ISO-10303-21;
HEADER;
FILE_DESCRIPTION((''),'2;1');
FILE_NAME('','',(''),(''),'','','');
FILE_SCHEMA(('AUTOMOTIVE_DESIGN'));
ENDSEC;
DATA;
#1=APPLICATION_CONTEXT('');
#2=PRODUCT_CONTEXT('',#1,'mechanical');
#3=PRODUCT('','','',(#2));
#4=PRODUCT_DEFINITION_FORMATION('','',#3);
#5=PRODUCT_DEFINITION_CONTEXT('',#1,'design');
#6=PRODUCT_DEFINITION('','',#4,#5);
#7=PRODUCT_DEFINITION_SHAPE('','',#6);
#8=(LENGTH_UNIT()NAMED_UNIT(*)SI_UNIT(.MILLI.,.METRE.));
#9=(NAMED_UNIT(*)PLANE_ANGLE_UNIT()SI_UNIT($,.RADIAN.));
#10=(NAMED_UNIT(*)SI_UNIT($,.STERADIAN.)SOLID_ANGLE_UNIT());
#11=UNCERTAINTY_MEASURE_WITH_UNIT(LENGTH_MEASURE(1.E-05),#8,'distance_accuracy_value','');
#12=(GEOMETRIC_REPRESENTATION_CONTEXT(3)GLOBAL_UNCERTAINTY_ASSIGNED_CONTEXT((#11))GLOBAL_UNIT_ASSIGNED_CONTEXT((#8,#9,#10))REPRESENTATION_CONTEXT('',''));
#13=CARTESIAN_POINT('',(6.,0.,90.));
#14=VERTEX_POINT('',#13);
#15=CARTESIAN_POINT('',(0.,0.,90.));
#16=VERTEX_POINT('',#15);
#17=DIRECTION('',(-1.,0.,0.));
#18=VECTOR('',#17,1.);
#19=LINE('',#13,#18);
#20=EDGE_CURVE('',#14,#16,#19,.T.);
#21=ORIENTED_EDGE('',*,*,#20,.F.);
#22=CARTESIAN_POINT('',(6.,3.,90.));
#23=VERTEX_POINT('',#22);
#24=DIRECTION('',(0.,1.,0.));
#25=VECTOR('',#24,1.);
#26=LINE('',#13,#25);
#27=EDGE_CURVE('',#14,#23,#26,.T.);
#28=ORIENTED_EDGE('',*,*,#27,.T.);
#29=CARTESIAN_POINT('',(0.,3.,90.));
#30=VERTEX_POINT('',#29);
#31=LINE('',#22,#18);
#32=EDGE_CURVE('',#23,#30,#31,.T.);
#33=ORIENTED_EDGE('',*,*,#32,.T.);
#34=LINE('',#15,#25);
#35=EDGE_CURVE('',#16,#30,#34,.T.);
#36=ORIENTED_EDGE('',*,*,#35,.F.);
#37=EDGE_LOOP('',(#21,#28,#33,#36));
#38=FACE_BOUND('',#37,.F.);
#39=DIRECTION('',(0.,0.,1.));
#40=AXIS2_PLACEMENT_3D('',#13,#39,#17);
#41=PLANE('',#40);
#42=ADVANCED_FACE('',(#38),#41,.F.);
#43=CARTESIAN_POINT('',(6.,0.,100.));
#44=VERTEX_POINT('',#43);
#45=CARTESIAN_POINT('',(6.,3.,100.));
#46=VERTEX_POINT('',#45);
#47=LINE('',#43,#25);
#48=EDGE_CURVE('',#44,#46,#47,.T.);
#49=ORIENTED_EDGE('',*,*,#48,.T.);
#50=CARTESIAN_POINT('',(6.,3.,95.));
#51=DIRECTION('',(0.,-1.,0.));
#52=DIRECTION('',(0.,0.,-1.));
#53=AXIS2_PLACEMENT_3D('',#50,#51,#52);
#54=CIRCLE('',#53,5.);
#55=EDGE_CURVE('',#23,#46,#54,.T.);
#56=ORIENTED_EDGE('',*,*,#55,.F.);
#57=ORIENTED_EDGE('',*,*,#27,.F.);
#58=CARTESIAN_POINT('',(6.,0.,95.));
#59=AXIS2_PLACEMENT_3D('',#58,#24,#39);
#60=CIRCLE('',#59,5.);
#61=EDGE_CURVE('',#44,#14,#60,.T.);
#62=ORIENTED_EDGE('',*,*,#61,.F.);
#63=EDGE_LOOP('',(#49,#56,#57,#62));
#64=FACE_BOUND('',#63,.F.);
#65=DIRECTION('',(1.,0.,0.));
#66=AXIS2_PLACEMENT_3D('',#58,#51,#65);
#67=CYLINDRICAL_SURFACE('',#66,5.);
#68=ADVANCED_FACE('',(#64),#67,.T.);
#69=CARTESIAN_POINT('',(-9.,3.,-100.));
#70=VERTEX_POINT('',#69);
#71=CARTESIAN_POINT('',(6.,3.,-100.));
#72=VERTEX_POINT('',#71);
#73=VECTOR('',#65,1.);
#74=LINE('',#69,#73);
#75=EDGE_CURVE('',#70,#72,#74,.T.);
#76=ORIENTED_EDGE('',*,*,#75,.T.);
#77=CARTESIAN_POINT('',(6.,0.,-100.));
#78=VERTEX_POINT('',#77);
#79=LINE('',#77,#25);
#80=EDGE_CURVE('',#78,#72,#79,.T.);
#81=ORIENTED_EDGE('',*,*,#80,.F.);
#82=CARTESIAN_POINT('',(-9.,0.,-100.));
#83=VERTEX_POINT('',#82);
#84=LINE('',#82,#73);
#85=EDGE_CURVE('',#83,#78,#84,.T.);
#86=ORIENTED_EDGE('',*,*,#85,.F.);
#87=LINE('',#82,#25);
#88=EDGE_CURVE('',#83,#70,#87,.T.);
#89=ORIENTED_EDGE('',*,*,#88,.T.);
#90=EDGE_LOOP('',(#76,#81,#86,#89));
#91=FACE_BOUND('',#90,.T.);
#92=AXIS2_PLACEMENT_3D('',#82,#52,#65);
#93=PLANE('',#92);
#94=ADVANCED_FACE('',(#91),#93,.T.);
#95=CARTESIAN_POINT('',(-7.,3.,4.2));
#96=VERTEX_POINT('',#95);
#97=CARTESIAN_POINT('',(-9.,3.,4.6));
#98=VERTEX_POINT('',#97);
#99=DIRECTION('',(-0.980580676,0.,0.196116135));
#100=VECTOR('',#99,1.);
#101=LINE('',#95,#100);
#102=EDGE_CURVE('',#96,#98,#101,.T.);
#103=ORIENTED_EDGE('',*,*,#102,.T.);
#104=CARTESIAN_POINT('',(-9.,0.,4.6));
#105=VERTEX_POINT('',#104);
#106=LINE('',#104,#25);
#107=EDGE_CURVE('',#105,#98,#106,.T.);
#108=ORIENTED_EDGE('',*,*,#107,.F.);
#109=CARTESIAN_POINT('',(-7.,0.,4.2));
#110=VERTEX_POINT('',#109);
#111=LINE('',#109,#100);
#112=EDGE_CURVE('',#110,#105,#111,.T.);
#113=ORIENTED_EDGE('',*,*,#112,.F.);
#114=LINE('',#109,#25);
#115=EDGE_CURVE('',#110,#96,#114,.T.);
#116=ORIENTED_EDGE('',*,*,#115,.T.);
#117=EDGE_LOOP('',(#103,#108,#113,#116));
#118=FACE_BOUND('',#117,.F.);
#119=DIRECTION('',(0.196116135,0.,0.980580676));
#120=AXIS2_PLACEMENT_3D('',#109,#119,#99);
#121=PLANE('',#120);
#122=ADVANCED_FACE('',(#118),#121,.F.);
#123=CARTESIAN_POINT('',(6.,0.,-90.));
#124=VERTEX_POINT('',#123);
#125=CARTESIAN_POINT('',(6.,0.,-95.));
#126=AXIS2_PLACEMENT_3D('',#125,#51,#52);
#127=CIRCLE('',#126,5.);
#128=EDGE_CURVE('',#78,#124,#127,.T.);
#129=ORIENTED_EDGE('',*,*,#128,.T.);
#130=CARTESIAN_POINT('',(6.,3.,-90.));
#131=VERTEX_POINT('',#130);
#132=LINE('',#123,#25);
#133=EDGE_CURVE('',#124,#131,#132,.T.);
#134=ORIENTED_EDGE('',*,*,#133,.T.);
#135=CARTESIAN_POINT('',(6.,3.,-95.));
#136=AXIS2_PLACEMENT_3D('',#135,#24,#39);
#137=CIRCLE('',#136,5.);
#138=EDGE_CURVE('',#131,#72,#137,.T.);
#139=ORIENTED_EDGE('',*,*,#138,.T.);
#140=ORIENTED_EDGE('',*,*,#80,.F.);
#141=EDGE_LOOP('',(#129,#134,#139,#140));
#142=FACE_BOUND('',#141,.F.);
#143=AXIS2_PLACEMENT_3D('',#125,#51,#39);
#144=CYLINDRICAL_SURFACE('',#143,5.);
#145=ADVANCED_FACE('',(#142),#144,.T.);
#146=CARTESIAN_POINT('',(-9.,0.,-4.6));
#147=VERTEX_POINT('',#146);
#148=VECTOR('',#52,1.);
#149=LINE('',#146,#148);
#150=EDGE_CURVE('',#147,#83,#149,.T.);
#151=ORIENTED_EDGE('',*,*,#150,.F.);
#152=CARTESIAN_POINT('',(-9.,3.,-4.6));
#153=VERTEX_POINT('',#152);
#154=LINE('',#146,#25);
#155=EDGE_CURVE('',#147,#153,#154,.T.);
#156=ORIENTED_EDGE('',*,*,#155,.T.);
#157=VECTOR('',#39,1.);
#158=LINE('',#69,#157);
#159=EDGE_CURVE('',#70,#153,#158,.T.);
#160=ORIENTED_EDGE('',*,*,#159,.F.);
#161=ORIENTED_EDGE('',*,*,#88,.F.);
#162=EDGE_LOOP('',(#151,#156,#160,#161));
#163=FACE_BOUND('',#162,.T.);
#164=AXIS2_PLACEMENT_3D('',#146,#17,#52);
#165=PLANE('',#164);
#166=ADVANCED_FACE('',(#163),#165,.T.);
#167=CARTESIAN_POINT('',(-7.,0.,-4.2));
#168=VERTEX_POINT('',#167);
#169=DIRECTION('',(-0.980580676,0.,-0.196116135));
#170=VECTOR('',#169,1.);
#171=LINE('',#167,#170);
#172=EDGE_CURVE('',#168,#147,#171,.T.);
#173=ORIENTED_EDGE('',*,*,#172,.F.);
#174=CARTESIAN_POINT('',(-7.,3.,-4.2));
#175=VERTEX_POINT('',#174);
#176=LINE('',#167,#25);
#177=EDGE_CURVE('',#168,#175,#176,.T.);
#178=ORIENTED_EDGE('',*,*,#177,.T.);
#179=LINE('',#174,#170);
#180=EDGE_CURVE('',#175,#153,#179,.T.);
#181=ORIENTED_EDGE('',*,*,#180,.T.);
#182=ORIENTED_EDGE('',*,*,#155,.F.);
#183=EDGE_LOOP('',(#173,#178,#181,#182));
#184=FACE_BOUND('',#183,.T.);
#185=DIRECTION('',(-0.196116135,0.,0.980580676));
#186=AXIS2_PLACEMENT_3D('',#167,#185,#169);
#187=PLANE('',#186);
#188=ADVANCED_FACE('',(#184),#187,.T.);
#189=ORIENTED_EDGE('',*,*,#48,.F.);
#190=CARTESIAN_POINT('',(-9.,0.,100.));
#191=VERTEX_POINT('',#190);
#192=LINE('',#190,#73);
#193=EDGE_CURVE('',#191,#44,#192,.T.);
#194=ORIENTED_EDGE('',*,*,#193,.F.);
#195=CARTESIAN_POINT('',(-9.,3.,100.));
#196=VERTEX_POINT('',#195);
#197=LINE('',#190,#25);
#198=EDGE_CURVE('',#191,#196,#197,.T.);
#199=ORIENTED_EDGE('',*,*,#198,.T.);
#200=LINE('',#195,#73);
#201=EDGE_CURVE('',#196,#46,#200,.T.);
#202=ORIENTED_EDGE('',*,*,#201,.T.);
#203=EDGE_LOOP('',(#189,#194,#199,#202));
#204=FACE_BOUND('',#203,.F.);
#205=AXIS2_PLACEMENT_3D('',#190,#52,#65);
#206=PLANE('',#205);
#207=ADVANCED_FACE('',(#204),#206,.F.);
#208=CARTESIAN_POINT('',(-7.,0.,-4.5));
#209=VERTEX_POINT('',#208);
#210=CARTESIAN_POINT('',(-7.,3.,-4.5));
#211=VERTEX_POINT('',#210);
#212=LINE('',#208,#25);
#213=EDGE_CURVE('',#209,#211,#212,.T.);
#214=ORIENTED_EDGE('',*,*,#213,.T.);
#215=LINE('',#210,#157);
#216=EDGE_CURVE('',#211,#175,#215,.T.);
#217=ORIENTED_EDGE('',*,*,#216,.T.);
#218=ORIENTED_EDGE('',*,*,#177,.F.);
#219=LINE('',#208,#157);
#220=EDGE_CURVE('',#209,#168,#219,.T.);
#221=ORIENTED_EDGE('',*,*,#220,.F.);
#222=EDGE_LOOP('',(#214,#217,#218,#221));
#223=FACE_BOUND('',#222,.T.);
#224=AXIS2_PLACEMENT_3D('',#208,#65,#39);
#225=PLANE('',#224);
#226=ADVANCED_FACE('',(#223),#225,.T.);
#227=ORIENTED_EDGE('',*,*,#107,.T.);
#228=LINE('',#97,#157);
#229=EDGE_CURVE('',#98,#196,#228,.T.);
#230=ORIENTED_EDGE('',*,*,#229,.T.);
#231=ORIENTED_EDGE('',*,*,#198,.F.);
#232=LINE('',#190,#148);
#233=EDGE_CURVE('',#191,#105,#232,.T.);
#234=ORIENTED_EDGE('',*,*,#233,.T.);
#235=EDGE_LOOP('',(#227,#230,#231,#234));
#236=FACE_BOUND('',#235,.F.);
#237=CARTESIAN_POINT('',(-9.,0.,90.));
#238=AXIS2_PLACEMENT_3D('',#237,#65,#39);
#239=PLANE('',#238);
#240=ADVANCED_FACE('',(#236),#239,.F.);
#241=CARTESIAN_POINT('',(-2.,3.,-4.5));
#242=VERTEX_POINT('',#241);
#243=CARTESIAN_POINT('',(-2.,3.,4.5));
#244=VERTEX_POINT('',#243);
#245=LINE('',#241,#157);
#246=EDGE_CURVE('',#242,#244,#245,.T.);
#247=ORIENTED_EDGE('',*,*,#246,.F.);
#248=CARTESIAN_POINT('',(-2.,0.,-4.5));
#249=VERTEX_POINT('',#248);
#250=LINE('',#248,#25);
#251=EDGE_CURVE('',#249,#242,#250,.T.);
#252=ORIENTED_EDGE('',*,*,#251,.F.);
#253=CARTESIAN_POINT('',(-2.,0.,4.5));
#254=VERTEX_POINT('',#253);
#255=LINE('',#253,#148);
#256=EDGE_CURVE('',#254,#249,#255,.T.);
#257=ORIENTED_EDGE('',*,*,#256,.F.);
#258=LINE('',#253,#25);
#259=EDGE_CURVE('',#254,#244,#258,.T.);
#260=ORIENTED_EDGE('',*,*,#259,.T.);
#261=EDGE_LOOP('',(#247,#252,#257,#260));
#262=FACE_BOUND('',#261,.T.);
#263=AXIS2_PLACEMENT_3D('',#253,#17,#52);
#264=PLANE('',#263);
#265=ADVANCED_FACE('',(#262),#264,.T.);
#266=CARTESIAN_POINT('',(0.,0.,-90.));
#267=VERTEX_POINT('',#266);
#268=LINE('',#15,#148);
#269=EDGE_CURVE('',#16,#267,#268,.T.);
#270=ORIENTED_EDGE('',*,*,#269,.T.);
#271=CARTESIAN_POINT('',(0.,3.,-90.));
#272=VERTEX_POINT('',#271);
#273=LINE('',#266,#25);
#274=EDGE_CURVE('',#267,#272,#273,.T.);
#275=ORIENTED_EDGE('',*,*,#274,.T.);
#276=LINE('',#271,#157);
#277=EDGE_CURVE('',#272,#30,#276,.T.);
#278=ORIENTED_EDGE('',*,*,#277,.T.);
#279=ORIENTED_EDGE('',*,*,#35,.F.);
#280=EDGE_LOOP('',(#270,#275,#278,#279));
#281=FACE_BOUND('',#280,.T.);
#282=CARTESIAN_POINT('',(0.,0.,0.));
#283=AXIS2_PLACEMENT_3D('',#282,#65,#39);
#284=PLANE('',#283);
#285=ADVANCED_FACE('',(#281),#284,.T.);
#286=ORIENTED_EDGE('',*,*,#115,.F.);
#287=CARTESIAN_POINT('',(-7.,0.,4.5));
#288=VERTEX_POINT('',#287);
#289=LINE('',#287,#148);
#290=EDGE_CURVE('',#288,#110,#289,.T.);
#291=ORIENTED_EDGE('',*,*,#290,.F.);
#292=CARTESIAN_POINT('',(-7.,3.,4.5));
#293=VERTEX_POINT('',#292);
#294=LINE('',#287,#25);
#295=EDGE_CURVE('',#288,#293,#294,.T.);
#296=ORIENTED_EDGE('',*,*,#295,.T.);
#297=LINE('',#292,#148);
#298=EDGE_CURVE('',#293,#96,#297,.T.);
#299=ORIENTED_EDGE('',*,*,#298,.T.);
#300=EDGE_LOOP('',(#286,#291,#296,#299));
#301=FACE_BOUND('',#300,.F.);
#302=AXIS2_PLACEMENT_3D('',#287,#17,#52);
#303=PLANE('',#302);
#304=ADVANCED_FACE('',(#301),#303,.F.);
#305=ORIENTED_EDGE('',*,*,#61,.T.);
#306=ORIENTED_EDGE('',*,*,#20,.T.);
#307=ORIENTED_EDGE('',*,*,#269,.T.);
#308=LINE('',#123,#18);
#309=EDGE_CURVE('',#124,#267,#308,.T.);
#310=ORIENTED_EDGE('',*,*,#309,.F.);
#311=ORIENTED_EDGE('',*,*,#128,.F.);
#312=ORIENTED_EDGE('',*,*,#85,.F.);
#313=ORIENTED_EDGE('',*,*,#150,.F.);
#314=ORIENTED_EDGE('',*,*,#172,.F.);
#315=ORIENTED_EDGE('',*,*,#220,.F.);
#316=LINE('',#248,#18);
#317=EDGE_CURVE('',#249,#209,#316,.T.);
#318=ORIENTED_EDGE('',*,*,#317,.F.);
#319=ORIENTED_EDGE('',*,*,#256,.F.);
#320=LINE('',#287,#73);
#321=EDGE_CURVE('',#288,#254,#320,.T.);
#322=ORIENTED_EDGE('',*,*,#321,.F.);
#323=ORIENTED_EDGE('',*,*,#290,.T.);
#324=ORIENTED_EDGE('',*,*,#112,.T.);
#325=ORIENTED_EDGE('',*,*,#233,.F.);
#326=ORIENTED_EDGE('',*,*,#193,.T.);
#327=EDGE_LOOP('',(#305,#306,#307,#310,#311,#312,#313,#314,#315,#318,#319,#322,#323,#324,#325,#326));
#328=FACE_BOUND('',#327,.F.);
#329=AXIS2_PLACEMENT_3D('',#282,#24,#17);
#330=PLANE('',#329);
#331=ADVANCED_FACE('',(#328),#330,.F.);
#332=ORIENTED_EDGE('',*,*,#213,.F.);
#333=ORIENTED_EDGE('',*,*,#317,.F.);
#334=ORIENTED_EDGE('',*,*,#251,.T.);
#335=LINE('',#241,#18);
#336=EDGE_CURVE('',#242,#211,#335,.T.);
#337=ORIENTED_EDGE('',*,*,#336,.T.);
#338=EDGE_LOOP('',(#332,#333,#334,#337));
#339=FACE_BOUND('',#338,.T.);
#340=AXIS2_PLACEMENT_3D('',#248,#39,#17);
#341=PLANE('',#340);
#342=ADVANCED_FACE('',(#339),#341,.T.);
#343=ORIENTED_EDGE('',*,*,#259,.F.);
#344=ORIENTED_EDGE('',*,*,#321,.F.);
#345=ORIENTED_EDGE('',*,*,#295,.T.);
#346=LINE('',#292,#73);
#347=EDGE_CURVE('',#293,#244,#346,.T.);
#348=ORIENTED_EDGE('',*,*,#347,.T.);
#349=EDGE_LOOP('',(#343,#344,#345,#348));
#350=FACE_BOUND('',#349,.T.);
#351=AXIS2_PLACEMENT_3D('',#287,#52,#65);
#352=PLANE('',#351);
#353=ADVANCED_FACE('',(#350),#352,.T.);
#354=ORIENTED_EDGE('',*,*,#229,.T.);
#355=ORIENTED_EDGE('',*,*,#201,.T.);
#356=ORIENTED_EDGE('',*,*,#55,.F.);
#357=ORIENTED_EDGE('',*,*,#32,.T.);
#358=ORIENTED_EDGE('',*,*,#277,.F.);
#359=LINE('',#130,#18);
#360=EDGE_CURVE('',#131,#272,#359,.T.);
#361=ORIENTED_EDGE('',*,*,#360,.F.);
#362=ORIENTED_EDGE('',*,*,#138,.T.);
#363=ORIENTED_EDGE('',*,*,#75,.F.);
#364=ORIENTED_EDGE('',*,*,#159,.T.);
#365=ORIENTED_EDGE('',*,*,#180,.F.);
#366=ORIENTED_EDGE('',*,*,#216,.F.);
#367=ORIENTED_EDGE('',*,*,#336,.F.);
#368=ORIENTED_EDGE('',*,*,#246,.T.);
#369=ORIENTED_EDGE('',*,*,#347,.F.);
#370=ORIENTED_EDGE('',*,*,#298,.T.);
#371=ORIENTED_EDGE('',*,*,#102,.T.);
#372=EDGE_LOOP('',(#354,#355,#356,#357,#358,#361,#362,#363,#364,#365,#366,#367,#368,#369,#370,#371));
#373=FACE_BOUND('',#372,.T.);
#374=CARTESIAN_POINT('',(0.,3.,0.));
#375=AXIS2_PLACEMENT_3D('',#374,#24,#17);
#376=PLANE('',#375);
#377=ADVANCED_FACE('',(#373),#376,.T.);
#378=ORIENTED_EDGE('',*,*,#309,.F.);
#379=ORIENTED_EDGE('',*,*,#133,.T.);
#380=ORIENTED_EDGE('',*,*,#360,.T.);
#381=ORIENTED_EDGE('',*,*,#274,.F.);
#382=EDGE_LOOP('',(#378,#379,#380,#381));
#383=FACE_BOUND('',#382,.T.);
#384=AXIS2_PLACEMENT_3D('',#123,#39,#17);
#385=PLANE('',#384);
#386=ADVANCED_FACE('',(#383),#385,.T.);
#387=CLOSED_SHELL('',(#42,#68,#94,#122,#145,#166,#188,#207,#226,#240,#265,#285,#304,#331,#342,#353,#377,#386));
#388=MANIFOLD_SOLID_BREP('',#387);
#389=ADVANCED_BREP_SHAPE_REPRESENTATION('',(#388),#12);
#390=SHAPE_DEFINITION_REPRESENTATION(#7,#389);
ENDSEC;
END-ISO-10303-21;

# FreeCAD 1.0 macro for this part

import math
import FreeCAD as App
import Part
import Sketcher
Q = App.Units.Quantity

doc = App.newDocument("Part")
params = doc.addObject("Spreadsheet::Sheet", "Params")
for row, (alias, value) in enumerate([
    ("sketch1_radius", "5 mm"),
    ("sketch1_width", "5 mm"),
    ("sketch1_height", "180 mm"),
    ("sketch1_height2", "9 mm"),
    ("sketch1_height3", "0.3 mm"),
    ("pad1_length", "3 mm"),
], start=1):
    params.set(f"A{row}", alias)
    params.set(f"B{row}", "=" + value)
    params.setAlias(f"B{row}", alias)

body = doc.addObject("PartDesign::Body", "Body")

# Sketch on XZ plane
sketch1 = body.newObject("Sketcher::SketchObject", "Sketch")
sketch1.AttachmentSupport = (doc.getObject("XZ_Plane"), [""])
sketch1.MapMode = "FlatFace"
sketch1.addGeometry([
    Part.LineSegment(App.Vector(6, 90, 0), App.Vector(0, 90, 0)),  # 0
    Part.LineSegment(App.Vector(0, 90, 0), App.Vector(0, -90, 0)),  # 1
    Part.LineSegment(App.Vector(0, -90, 0), App.Vector(6, -90, 0)),  # 2
    Part.ArcOfCircle(Part.Circle(App.Vector(6, -95, 0), App.Vector(0, 0, 1), 5), math.radians(-90), math.radians(90)),  # 3
    Part.LineSegment(App.Vector(6, -100, 0), App.Vector(-9, -100, 0)),  # 4
    Part.LineSegment(App.Vector(-9, -100, 0), App.Vector(-9, -4.6, 0)),  # 5
    Part.LineSegment(App.Vector(-9, -4.6, 0), App.Vector(-7, -4.2, 0)),  # 6
    Part.LineSegment(App.Vector(-7, -4.2, 0), App.Vector(-7, -4.5, 0)),  # 7
    Part.LineSegment(App.Vector(-7, -4.5, 0), App.Vector(-2, -4.5, 0)),  # 8
    Part.LineSegment(App.Vector(-2, -4.5, 0), App.Vector(-2, 4.5, 0)),  # 9
    Part.LineSegment(App.Vector(-2, 4.5, 0), App.Vector(-7, 4.5, 0)),  # 10
    Part.LineSegment(App.Vector(-7, 4.5, 0), App.Vector(-7, 4.2, 0)),  # 11
    Part.LineSegment(App.Vector(-7, 4.2, 0), App.Vector(-9, 4.6, 0)),  # 12
    Part.LineSegment(App.Vector(-9, 4.6, 0), App.Vector(-9, 100, 0)),  # 13
    Part.LineSegment(App.Vector(-9, 100, 0), App.Vector(6, 100, 0)),  # 14
    Part.ArcOfCircle(Part.Circle(App.Vector(6, 95, 0), App.Vector(0, 0, 1), 5), math.radians(-90), math.radians(90)),  # 15
], False)
sketch1.addConstraint([
    Sketcher.Constraint("Coincident", 0, 2, 1, 1),
    Sketcher.Constraint("Coincident", 1, 2, 2, 1),
    Sketcher.Constraint("Tangent", 2, 2, 3, 2),
    Sketcher.Constraint("Tangent", 3, 1, 4, 1),
    Sketcher.Constraint("Coincident", 4, 2, 5, 1),
    Sketcher.Constraint("Coincident", 5, 2, 6, 1),
    Sketcher.Constraint("Coincident", 6, 2, 7, 1),
    Sketcher.Constraint("Coincident", 7, 2, 8, 1),
    Sketcher.Constraint("Coincident", 8, 2, 9, 1),
    Sketcher.Constraint("Coincident", 9, 2, 10, 1),
    Sketcher.Constraint("Coincident", 10, 2, 11, 1),
    Sketcher.Constraint("Coincident", 11, 2, 12, 1),
    Sketcher.Constraint("Coincident", 12, 2, 13, 1),
    Sketcher.Constraint("Coincident", 13, 2, 14, 1),
    Sketcher.Constraint("Tangent", 14, 2, 15, 2),
    Sketcher.Constraint("Tangent", 15, 1, 0, 1),
    Sketcher.Constraint("Horizontal", 0),
    Sketcher.Constraint("Vertical", 1),
    Sketcher.Constraint("Horizontal", 2),
    Sketcher.Constraint("Horizontal", 4),
    Sketcher.Constraint("Vertical", 5),
    Sketcher.Constraint("Vertical", 7),
    Sketcher.Constraint("Horizontal", 8),
    Sketcher.Constraint("Vertical", 9),
    Sketcher.Constraint("Horizontal", 10),
    Sketcher.Constraint("Vertical", 11),
    Sketcher.Constraint("Vertical", 13),
    Sketcher.Constraint("Horizontal", 14),
    Sketcher.Constraint("Equal", 3, 15),
    Sketcher.Constraint("Symmetric", 0, 2, 1, 2, -1, 1),
    Sketcher.Constraint("Symmetric", 7, 2, 10, 2, -1),
    Sketcher.Constraint("Symmetric", 5, 2, 12, 2, -1),
    Sketcher.Constraint("Vertical", 3, 3, 15, 3),
    Sketcher.Constraint("Equal", 7, 11),
    Sketcher.Constraint("Radius", 3, 5.0),
    Sketcher.Constraint("DistanceX", 8, 1, 8, 2, 5.0),
    Sketcher.Constraint("DistanceY", 1, 2, 1, 1, 180.0),
    Sketcher.Constraint("DistanceY", 9, 1, 9, 2, 9.0),
    Sketcher.Constraint("DistanceY", 7, 2, 7, 1, 0.3),
    Sketcher.Constraint("DistanceX", 4, 2, -1, 1, 9.0),
    Sketcher.Constraint("Angle", 6, Q("11.31 deg")),
    Sketcher.Constraint("DistanceY", 1, 2, 5, 2, 85.4),
    Sketcher.Constraint("DistanceX", 0, 2, 0, 1, 6.0),
])
sketch1.setExpression("Constraints[34]", "Params.sketch1_radius")
sketch1.setExpression("Constraints[35]", "Params.sketch1_width")
sketch1.setExpression("Constraints[36]", "Params.sketch1_height")
sketch1.setExpression("Constraints[37]", "Params.sketch1_height2")
sketch1.setExpression("Constraints[38]", "Params.sketch1_height3")
pad1 = body.newObject("PartDesign::Pad", "Pad")
pad1.Profile = sketch1
pad1.setExpression("Length", "Params.pad1_length")
pad1.Reversed = True

doc.recompute()
